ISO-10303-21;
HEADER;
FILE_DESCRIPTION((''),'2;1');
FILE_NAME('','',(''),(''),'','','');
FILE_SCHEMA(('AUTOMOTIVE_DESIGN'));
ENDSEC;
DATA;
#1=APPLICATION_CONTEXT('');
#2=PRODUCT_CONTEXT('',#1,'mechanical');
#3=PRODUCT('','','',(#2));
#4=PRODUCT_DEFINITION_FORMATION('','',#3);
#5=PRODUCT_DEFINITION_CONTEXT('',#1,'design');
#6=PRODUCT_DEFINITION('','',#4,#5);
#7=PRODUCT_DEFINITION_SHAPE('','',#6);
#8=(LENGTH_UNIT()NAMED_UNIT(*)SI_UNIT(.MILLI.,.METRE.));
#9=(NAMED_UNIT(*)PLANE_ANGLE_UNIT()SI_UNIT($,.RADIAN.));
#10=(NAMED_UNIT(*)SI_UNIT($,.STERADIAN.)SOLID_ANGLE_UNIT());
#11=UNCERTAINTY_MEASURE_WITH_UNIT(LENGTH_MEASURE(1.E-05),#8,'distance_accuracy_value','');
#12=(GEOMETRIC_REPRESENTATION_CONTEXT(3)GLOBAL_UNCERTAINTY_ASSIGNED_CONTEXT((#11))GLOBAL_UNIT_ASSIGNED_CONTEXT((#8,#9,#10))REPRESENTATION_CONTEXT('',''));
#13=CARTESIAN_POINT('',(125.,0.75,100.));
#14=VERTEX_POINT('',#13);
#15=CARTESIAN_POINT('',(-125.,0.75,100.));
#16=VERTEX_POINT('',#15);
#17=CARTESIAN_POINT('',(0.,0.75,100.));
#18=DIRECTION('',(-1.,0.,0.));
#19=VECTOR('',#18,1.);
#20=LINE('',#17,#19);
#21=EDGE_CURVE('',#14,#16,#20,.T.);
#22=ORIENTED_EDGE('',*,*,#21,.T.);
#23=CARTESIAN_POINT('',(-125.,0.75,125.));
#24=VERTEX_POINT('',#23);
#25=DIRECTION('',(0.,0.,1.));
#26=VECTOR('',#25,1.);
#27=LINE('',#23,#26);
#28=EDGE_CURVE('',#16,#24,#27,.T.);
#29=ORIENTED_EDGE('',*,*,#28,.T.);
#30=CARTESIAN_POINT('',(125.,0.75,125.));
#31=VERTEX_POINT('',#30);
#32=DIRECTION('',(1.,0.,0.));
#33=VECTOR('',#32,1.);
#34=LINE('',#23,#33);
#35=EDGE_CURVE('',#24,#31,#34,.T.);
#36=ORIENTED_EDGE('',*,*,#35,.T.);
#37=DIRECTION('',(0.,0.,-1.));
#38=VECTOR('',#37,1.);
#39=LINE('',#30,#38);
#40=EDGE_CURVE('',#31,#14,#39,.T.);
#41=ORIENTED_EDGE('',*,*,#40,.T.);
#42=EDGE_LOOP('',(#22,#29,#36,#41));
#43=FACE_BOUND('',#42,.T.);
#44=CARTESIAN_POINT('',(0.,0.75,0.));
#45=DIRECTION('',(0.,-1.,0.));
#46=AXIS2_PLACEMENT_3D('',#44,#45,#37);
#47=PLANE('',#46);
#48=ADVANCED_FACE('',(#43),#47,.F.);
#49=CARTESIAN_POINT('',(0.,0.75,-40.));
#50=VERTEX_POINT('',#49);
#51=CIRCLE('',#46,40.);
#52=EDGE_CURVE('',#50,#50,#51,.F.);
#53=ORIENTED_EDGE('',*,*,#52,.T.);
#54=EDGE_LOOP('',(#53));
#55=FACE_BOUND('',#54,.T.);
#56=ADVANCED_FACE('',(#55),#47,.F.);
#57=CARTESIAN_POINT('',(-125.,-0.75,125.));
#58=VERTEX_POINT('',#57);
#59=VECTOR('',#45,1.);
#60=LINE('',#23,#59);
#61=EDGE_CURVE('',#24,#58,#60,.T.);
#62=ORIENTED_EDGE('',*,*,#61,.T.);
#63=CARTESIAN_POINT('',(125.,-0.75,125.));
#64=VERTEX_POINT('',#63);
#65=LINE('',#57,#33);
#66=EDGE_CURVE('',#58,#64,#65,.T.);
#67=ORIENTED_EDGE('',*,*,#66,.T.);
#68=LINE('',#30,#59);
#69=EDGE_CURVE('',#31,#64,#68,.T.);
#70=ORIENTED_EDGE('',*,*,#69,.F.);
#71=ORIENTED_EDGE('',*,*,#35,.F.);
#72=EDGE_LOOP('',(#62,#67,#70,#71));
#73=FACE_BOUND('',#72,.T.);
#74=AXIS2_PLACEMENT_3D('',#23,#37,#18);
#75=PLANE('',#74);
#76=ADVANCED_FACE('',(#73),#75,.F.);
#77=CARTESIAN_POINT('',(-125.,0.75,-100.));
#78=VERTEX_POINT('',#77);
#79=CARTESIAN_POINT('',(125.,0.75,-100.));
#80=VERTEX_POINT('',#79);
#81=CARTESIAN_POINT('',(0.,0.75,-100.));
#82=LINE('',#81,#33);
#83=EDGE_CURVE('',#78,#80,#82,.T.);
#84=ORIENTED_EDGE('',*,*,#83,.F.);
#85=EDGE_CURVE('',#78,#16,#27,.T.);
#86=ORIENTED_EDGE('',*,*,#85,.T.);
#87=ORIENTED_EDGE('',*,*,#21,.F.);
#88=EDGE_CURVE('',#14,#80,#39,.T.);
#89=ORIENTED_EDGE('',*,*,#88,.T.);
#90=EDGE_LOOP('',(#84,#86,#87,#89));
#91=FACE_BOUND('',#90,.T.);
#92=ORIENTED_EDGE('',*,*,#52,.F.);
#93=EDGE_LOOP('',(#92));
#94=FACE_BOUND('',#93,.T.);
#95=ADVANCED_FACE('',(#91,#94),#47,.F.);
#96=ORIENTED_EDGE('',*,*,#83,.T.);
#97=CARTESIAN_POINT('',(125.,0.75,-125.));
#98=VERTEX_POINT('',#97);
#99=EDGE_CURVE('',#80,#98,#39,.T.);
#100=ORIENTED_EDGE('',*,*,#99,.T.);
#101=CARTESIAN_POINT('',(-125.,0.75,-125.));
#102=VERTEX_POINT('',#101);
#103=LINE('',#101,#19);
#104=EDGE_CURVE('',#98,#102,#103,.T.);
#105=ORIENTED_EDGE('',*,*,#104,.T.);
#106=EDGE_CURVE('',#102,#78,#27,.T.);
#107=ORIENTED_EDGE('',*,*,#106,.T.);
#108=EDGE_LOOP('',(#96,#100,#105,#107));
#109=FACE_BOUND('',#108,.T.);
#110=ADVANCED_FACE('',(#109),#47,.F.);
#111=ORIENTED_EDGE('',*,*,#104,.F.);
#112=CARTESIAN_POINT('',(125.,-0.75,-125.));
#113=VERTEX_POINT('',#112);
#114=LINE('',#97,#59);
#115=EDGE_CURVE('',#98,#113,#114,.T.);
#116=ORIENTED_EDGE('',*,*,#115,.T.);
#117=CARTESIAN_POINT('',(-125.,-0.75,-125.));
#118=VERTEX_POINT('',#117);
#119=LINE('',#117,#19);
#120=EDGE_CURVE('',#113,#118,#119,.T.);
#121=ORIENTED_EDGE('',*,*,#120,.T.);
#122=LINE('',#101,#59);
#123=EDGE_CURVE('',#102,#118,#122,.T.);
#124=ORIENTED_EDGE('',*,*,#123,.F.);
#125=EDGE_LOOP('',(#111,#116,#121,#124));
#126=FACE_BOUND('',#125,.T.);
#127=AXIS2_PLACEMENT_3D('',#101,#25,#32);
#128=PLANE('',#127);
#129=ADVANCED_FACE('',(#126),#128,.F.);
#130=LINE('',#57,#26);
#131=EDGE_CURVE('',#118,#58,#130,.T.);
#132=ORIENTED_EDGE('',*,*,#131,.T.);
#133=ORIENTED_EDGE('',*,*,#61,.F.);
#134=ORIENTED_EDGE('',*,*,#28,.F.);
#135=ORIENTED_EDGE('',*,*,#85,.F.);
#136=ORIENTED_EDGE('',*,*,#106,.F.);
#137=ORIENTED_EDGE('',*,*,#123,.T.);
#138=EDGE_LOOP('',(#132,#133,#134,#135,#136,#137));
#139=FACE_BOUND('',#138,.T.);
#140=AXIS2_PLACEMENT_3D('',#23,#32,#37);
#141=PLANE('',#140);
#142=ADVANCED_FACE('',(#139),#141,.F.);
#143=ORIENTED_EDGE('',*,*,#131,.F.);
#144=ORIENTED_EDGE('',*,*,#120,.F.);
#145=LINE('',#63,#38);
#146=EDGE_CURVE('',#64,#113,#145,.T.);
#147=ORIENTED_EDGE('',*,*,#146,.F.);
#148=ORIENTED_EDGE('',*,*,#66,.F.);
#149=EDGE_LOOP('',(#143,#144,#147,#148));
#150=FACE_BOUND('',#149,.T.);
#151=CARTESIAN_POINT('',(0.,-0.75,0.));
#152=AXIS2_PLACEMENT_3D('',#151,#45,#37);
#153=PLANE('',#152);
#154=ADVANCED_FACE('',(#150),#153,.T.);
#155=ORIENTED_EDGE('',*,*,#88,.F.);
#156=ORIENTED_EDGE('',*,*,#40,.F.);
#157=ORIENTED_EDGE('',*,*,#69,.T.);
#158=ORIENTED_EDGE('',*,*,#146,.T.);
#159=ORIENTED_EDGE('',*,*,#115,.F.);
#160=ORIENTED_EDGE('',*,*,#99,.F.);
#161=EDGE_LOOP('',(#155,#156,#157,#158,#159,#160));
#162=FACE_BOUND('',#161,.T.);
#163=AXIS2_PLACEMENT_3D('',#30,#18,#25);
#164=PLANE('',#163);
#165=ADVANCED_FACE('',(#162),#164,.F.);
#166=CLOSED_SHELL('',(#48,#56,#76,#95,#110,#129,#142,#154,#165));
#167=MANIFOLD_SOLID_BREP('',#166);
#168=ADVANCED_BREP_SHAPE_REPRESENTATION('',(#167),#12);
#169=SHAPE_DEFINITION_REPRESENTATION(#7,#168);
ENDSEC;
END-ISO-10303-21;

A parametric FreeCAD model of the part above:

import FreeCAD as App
import Part
import Sketcher

V = App.Vector
Q = App.Units.Quantity


def add_polygon(sketch, points):
    """Adds a closed chain of lines whose ends are joined by coincident constraints."""
    first, n = sketch.GeometryCount, len(points)
    for a, b in zip(points, points[1:] + points[:1]):
        sketch.addGeometry(Part.LineSegment(App.Vector(*a, 0), App.Vector(*b, 0)), False)
    for i in range(n):
        sketch.addConstraint(Sketcher.Constraint("Coincident", first + i, 2, first + (i + 1) % n, 1))

doc = App.newDocument("Part")
body = doc.addObject("PartDesign::Body", "Body")

sketch1 = body.newObject("Sketcher::SketchObject", "Sketch")
sketch1.AttachmentSupport = (doc.getObject("XZ_Plane"), [""])
sketch1.MapMode = "FlatFace"
add_polygon(sketch1, [(-125, -125), (-125, 125), (125, 125), (125, -125)])
sketch1.addConstraint([
    Sketcher.Constraint("Vertical", 0),
    Sketcher.Constraint("Horizontal", 1),
    Sketcher.Constraint("Vertical", 2),
    Sketcher.Constraint("Horizontal", 3),
    Sketcher.Constraint("Symmetric", 0, 2, 2, 2, -1, 1),
    Sketcher.Constraint("Equal", 3, 0),
    Sketcher.Constraint("DistanceX", 1, 1, 1, 2, Q("250 mm")),
])
pad1 = body.newObject("PartDesign::Pad", "Pad")
pad1.Profile = sketch1
pad1.Length = 1.5
pad1.Midplane = True

doc.recompute()
